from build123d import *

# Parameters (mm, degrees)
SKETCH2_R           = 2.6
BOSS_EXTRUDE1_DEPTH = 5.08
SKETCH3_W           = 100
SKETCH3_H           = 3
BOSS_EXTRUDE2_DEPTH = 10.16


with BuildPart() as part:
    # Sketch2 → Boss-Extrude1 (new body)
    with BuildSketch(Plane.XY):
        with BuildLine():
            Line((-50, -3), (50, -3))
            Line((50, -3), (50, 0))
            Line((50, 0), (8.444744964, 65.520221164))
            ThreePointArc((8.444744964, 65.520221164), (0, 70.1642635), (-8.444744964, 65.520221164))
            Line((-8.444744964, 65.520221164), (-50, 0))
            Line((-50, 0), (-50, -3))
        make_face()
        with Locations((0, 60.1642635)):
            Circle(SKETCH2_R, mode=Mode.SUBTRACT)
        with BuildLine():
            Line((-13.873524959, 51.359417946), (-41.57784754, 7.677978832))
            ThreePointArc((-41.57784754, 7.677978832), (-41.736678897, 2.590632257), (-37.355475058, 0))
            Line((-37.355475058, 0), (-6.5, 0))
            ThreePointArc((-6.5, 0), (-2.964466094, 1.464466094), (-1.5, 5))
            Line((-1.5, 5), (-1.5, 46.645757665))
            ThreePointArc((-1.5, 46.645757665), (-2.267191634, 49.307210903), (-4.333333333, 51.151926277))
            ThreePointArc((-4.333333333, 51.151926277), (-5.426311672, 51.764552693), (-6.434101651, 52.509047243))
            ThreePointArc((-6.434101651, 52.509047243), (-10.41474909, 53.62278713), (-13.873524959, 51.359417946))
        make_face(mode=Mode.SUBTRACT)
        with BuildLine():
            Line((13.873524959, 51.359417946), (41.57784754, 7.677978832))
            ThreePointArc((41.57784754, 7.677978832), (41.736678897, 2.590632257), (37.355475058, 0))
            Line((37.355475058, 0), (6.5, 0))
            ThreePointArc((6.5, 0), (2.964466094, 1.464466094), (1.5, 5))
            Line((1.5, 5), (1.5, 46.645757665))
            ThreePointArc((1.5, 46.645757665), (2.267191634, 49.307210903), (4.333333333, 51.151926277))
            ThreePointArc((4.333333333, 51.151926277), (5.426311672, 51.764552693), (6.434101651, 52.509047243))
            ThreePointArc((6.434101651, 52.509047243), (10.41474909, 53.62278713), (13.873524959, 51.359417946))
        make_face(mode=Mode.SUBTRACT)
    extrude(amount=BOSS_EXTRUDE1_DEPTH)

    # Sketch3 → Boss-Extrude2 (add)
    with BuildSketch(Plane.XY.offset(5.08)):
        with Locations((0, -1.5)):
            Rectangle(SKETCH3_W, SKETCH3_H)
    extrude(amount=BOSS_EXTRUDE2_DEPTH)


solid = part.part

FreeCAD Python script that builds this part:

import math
import FreeCAD as App
import Part
import Sketcher
from FreeCAD import Vector
Q = App.Units.Quantity


def add_polygon(sketch, points):
    """Adds a closed chain of lines whose ends are joined by coincident constraints."""
    first, n = sketch.GeometryCount, len(points)
    for a, b in zip(points, points[1:] + points[:1]):
        sketch.addGeometry(Part.LineSegment(App.Vector(*a, 0), App.Vector(*b, 0)), False)
    for i in range(n):
        sketch.addConstraint(Sketcher.Constraint("Coincident", first + i, 2, first + (i + 1) % n, 1))

doc = App.newDocument("Part")
params = doc.addObject("Spreadsheet::Sheet", "Params")
for row, (alias, value) in enumerate([
    ("sketch1_radius", "10 mm"),
    ("sketch1_radius2", "5 mm"),
    ("sketch1_diameter", "5.2 mm"),
    ("sketch1_width", "100 mm"),
    ("sketch1_height", "3 mm"),
    ("pad1_length", "5.08 mm"),
    ("sketch2_width", "100 mm"),
    ("sketch2_height", "3 mm"),
    ("pad2_length", "10.16 mm"),
], start=1):
    params.set(f"A{row}", alias)
    params.set(f"B{row}", "=" + value)
    params.setAlias(f"B{row}", alias)

body = doc.addObject("PartDesign::Body", "Body")

sketch1 = body.newObject("Sketcher::SketchObject", "Sketch")
sketch1.AttachmentSupport = (doc.getObject("XY_Plane"), [""])
sketch1.MapMode = "FlatFace"
sketch1.addGeometry([
    Part.LineSegment(Vector(-50, -3, 0), Vector(50, -3, 0)),
    Part.LineSegment(Vector(50, -3, 0), Vector(50, 0, 0)),
    Part.LineSegment(Vector(50, 0, 0), Vector(8.4, 65.5, 0)),
    Part.ArcOfCircle(Part.Circle(Vector(0, 60.2, 0), Vector(0, 0, 1), 10), math.radians(32), math.radians(148)),
    Part.LineSegment(Vector(-8.4, 65.5, 0), Vector(-50, 0, 0)),
    Part.LineSegment(Vector(-50, 0, 0), Vector(-50, -3, 0)),
    Part.LineSegment(Vector(-41.6, 7.7, 0), Vector(-13.9, 51.4, 0)),
    Part.ArcOfCircle(Part.Circle(Vector(-9.7, 48.7, 0), Vector(0, 0, 1), 5), math.radians(50), math.radians(148)),
    Part.ArcOfCircle(Part.Circle(Vector(0, 60.2, 0), Vector(0, 0, 1), 10), math.radians(-130.05), math.radians(-115.68)),
    Part.ArcOfCircle(Part.Circle(Vector(-6.5, 46.6, 0), Vector(0, 0, 1), 5), math.radians(0), math.radians(64)),
    Part.LineSegment(Vector(-1.5, 46.6, 0), Vector(-1.5, 5, 0)),
    Part.ArcOfCircle(Part.Circle(Vector(-6.5, 5, 0), Vector(0, 0, 1), 5), math.radians(-90), math.radians(0)),
    Part.LineSegment(Vector(-6.5, 0, 0), Vector(-37.4, 0, 0)),
    Part.ArcOfCircle(Part.Circle(Vector(-37.4, 5, 0), Vector(0, 0, 1), 5), math.radians(148), math.radians(270)),
    Part.ArcOfCircle(Part.Circle(Vector(9.7, 48.7, 0), Vector(0, 0, 1), 5), math.radians(32), math.radians(130)),
    Part.LineSegment(Vector(13.9, 51.4, 0), Vector(41.6, 7.7, 0)),
    Part.ArcOfCircle(Part.Circle(Vector(37.4, 5, 0), Vector(0, 0, 1), 5), math.radians(-90), math.radians(32)),
    Part.LineSegment(Vector(37.4, 0, 0), Vector(6.5, 0, 0)),
    Part.ArcOfCircle(Part.Circle(Vector(6.5, 5, 0), Vector(0, 0, 1), 5), math.radians(180), math.radians(270)),
    Part.LineSegment(Vector(1.5, 5, 0), Vector(1.5, 46.6, 0)),
    Part.ArcOfCircle(Part.Circle(Vector(6.5, 46.6, 0), Vector(0, 0, 1), 5), math.radians(116), math.radians(180)),
    Part.ArcOfCircle(Part.Circle(Vector(0, 60.2, 0), Vector(0, 0, 1), 10), math.radians(-64.32), math.radians(-49.95)),
    Part.Circle(Vector(0, 60.2, 0), Vector(0, 0, 1), 2.6),
], False)
sketch1.addConstraint([
    Sketcher.Constraint("Coincident", 0, 2, 1, 1),
    Sketcher.Constraint("Coincident", 1, 2, 2, 1),
    Sketcher.Constraint("Tangent", 2, 2, 3, 1),
    Sketcher.Constraint("Tangent", 3, 2, 4, 1),
    Sketcher.Constraint("Coincident", 4, 2, 5, 1),
    Sketcher.Constraint("Coincident", 5, 2, 0, 1),
    Sketcher.Constraint("Tangent", 6, 2, 7, 2),
    Sketcher.Constraint("Tangent", 7, 1, 8, 1),
    Sketcher.Constraint("Tangent", 8, 2, 9, 2),
    Sketcher.Constraint("Tangent", 9, 1, 10, 1),
    Sketcher.Constraint("Tangent", 10, 2, 11, 2),
    Sketcher.Constraint("Tangent", 11, 1, 12, 1),
    Sketcher.Constraint("Tangent", 12, 2, 13, 2),
    Sketcher.Constraint("Tangent", 13, 1, 6, 1),
    Sketcher.Constraint("Tangent", 14, 1, 15, 1),
    Sketcher.Constraint("Tangent", 15, 2, 16, 2),
    Sketcher.Constraint("Tangent", 16, 1, 17, 1),
    Sketcher.Constraint("Tangent", 17, 2, 18, 2),
    Sketcher.Constraint("Tangent", 18, 1, 19, 1),
    Sketcher.Constraint("Tangent", 19, 2, 20, 2),
    Sketcher.Constraint("Tangent", 20, 1, 21, 1),
    Sketcher.Constraint("Tangent", 21, 2, 14, 2),
    Sketcher.Constraint("Horizontal", 0),
    Sketcher.Constraint("Vertical", 1),
    Sketcher.Constraint("Vertical", 5),
    Sketcher.Constraint("Vertical", 10),
    Sketcher.Constraint("Horizontal", 12),
    Sketcher.Constraint("Horizontal", 17),
    Sketcher.Constraint("Vertical", 19),
    Sketcher.Constraint("Coincident", 8, 3, 3, 3),
    Sketcher.Constraint("Coincident", 21, 3, 3, 3),
    Sketcher.Constraint("Coincident", 22, 3, 3, 3),
    Sketcher.Constraint("Equal", 3, 8),
    Sketcher.Constraint("Equal", 7, 9),
    Sketcher.Constraint("Equal", 9, 11),
    Sketcher.Constraint("Equal", 11, 13),
    Sketcher.Constraint("Equal", 13, 14),
    Sketcher.Constraint("Equal", 14, 16),
    Sketcher.Constraint("Equal", 16, 18),
    Sketcher.Constraint("Equal", 18, 20),
    Sketcher.Constraint("Equal", 8, 21),
    Sketcher.Constraint("Symmetric", 1, 2, 4, 2, -1, 1),
    Sketcher.Constraint("Symmetric", 12, 2, 16, 1, -1, 1),
    Sketcher.Constraint("Symmetric", 7, 3, 14, 3, -2),
    Sketcher.Constraint("Symmetric", 11, 3, 18, 3, -2),
    Sketcher.Constraint("PointOnObject", 1, 2, -1),
    Sketcher.Constraint("Parallel", 4, 6),
    Sketcher.Constraint("Radius", 3, Q("10 mm")),
    Sketcher.Constraint("Radius", 7, Q("5 mm")),
    Sketcher.Constraint("Diameter", 22, Q("5.2 mm")),
    Sketcher.Constraint("DistanceX", 0, 1, 0, 2, Q("100 mm")),
    Sketcher.Constraint("DistanceY", 1, 1, 1, 2, Q("3 mm")),
    Sketcher.Constraint("DistanceX", 11, 3, 18, 3, Q("13 mm")),
    Sketcher.Constraint("DistanceX", 7, 1, -1, 1, Q("6.434102 mm")),
    Sketcher.Constraint("Distance", 6, Q("51.726179 mm")),
])
sketch1.setExpression("Constraints[47]", "Params.sketch1_radius")
sketch1.setExpression("Constraints[48]", "Params.sketch1_radius2")
sketch1.setExpression("Constraints[49]", "Params.sketch1_diameter")
sketch1.setExpression("Constraints[50]", "Params.sketch1_width")
sketch1.setExpression("Constraints[51]", "Params.sketch1_height")
pad1 = body.newObject("PartDesign::Pad", "Pad")
pad1.Profile = sketch1
pad1.setExpression("Length", "Params.pad1_length")

sketch2 = body.newObject("Sketcher::SketchObject", "Sketch001")
sketch2.AttachmentSupport = (doc.getObject("XY_Plane"), [""])
sketch2.MapMode = "FlatFace"
sketch2.AttachmentOffset = App.Placement(Vector(0, 0, 5.08), App.Rotation())
add_polygon(sketch2, [(-50, 0), (-50, -3), (50, -3), (50, 0)])
sketch2.addConstraint([
    Sketcher.Constraint("Vertical", 0),
    Sketcher.Constraint("Horizontal", 1),
    Sketcher.Constraint("Vertical", 2),
    Sketcher.Constraint("Horizontal", 3),
    Sketcher.Constraint("Symmetric", 2, 2, 3, 2, -1, 1),
    Sketcher.Constraint("DistanceX", 1, 1, 1, 2, Q("100 mm")),
    Sketcher.Constraint("DistanceY", 0, 2, 0, 1, Q("3 mm")),
])
sketch2.setExpression("Constraints[9]", "Params.sketch2_width")
sketch2.setExpression("Constraints[10]", "Params.sketch2_height")
pad2 = body.newObject("PartDesign::Pad", "Pad001")
pad2.Profile = sketch2
pad2.setExpression("Length", "Params.pad2_length")

doc.recompute()
